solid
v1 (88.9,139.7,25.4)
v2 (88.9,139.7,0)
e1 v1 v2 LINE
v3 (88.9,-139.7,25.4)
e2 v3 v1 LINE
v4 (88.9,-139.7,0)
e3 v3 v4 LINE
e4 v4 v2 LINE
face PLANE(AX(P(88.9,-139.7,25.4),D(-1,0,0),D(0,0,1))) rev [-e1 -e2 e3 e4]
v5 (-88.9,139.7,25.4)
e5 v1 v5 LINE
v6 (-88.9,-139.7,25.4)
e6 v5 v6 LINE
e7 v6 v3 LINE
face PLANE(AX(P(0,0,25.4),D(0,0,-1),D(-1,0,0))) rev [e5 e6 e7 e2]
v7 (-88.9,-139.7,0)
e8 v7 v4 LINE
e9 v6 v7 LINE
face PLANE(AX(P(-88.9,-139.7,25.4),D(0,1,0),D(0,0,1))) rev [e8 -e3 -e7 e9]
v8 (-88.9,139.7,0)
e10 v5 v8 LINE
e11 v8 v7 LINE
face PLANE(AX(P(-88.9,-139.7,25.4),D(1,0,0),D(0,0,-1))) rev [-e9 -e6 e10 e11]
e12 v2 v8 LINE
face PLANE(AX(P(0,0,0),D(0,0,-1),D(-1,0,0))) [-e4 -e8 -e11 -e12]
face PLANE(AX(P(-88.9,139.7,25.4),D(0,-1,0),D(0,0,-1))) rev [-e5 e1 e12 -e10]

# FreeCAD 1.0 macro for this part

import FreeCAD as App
import Part
import Sketcher
Q = App.Units.Quantity


def add_polygon(sketch, points):
    """Adds a closed chain of lines whose ends are joined by coincident constraints."""
    first, n = sketch.GeometryCount, len(points)
    for a, b in zip(points, points[1:] + points[:1]):
        sketch.addGeometry(Part.LineSegment(App.Vector(*a, 0), App.Vector(*b, 0)), False)
    for i in range(n):
        sketch.addConstraint(Sketcher.Constraint("Coincident", first + i, 2, first + (i + 1) % n, 1))

doc = App.newDocument("Part")
body = doc.addObject("PartDesign::Body", "Body")

sketch1 = body.newObject("Sketcher::SketchObject", "Sketch")
sketch1.AttachmentSupport = (doc.getObject("XY_Plane"), [""])
sketch1.MapMode = "FlatFace"
add_polygon(sketch1, [(-88.9, 139.7), (-88.9, -139.7), (88.9, -139.7), (88.9, 139.7)])
sketch1.addConstraint([
    Sketcher.Constraint("Vertical", 0),
    Sketcher.Constraint("Horizontal", 1),
    Sketcher.Constraint("Vertical", 2),
    Sketcher.Constraint("Horizontal", 3),
    Sketcher.Constraint("Symmetric", 0, 2, 2, 2, -1, 1),
    Sketcher.Constraint("DistanceX", 1, 1, 1, 2, Q("7 in")),
    Sketcher.Constraint("DistanceY", 0, 2, 0, 1, Q("11 in")),
])
pad1 = body.newObject("PartDesign::Pad", "Pad")
pad1.Profile = sketch1
pad1.Length = Q("1 in")

doc.recompute()
